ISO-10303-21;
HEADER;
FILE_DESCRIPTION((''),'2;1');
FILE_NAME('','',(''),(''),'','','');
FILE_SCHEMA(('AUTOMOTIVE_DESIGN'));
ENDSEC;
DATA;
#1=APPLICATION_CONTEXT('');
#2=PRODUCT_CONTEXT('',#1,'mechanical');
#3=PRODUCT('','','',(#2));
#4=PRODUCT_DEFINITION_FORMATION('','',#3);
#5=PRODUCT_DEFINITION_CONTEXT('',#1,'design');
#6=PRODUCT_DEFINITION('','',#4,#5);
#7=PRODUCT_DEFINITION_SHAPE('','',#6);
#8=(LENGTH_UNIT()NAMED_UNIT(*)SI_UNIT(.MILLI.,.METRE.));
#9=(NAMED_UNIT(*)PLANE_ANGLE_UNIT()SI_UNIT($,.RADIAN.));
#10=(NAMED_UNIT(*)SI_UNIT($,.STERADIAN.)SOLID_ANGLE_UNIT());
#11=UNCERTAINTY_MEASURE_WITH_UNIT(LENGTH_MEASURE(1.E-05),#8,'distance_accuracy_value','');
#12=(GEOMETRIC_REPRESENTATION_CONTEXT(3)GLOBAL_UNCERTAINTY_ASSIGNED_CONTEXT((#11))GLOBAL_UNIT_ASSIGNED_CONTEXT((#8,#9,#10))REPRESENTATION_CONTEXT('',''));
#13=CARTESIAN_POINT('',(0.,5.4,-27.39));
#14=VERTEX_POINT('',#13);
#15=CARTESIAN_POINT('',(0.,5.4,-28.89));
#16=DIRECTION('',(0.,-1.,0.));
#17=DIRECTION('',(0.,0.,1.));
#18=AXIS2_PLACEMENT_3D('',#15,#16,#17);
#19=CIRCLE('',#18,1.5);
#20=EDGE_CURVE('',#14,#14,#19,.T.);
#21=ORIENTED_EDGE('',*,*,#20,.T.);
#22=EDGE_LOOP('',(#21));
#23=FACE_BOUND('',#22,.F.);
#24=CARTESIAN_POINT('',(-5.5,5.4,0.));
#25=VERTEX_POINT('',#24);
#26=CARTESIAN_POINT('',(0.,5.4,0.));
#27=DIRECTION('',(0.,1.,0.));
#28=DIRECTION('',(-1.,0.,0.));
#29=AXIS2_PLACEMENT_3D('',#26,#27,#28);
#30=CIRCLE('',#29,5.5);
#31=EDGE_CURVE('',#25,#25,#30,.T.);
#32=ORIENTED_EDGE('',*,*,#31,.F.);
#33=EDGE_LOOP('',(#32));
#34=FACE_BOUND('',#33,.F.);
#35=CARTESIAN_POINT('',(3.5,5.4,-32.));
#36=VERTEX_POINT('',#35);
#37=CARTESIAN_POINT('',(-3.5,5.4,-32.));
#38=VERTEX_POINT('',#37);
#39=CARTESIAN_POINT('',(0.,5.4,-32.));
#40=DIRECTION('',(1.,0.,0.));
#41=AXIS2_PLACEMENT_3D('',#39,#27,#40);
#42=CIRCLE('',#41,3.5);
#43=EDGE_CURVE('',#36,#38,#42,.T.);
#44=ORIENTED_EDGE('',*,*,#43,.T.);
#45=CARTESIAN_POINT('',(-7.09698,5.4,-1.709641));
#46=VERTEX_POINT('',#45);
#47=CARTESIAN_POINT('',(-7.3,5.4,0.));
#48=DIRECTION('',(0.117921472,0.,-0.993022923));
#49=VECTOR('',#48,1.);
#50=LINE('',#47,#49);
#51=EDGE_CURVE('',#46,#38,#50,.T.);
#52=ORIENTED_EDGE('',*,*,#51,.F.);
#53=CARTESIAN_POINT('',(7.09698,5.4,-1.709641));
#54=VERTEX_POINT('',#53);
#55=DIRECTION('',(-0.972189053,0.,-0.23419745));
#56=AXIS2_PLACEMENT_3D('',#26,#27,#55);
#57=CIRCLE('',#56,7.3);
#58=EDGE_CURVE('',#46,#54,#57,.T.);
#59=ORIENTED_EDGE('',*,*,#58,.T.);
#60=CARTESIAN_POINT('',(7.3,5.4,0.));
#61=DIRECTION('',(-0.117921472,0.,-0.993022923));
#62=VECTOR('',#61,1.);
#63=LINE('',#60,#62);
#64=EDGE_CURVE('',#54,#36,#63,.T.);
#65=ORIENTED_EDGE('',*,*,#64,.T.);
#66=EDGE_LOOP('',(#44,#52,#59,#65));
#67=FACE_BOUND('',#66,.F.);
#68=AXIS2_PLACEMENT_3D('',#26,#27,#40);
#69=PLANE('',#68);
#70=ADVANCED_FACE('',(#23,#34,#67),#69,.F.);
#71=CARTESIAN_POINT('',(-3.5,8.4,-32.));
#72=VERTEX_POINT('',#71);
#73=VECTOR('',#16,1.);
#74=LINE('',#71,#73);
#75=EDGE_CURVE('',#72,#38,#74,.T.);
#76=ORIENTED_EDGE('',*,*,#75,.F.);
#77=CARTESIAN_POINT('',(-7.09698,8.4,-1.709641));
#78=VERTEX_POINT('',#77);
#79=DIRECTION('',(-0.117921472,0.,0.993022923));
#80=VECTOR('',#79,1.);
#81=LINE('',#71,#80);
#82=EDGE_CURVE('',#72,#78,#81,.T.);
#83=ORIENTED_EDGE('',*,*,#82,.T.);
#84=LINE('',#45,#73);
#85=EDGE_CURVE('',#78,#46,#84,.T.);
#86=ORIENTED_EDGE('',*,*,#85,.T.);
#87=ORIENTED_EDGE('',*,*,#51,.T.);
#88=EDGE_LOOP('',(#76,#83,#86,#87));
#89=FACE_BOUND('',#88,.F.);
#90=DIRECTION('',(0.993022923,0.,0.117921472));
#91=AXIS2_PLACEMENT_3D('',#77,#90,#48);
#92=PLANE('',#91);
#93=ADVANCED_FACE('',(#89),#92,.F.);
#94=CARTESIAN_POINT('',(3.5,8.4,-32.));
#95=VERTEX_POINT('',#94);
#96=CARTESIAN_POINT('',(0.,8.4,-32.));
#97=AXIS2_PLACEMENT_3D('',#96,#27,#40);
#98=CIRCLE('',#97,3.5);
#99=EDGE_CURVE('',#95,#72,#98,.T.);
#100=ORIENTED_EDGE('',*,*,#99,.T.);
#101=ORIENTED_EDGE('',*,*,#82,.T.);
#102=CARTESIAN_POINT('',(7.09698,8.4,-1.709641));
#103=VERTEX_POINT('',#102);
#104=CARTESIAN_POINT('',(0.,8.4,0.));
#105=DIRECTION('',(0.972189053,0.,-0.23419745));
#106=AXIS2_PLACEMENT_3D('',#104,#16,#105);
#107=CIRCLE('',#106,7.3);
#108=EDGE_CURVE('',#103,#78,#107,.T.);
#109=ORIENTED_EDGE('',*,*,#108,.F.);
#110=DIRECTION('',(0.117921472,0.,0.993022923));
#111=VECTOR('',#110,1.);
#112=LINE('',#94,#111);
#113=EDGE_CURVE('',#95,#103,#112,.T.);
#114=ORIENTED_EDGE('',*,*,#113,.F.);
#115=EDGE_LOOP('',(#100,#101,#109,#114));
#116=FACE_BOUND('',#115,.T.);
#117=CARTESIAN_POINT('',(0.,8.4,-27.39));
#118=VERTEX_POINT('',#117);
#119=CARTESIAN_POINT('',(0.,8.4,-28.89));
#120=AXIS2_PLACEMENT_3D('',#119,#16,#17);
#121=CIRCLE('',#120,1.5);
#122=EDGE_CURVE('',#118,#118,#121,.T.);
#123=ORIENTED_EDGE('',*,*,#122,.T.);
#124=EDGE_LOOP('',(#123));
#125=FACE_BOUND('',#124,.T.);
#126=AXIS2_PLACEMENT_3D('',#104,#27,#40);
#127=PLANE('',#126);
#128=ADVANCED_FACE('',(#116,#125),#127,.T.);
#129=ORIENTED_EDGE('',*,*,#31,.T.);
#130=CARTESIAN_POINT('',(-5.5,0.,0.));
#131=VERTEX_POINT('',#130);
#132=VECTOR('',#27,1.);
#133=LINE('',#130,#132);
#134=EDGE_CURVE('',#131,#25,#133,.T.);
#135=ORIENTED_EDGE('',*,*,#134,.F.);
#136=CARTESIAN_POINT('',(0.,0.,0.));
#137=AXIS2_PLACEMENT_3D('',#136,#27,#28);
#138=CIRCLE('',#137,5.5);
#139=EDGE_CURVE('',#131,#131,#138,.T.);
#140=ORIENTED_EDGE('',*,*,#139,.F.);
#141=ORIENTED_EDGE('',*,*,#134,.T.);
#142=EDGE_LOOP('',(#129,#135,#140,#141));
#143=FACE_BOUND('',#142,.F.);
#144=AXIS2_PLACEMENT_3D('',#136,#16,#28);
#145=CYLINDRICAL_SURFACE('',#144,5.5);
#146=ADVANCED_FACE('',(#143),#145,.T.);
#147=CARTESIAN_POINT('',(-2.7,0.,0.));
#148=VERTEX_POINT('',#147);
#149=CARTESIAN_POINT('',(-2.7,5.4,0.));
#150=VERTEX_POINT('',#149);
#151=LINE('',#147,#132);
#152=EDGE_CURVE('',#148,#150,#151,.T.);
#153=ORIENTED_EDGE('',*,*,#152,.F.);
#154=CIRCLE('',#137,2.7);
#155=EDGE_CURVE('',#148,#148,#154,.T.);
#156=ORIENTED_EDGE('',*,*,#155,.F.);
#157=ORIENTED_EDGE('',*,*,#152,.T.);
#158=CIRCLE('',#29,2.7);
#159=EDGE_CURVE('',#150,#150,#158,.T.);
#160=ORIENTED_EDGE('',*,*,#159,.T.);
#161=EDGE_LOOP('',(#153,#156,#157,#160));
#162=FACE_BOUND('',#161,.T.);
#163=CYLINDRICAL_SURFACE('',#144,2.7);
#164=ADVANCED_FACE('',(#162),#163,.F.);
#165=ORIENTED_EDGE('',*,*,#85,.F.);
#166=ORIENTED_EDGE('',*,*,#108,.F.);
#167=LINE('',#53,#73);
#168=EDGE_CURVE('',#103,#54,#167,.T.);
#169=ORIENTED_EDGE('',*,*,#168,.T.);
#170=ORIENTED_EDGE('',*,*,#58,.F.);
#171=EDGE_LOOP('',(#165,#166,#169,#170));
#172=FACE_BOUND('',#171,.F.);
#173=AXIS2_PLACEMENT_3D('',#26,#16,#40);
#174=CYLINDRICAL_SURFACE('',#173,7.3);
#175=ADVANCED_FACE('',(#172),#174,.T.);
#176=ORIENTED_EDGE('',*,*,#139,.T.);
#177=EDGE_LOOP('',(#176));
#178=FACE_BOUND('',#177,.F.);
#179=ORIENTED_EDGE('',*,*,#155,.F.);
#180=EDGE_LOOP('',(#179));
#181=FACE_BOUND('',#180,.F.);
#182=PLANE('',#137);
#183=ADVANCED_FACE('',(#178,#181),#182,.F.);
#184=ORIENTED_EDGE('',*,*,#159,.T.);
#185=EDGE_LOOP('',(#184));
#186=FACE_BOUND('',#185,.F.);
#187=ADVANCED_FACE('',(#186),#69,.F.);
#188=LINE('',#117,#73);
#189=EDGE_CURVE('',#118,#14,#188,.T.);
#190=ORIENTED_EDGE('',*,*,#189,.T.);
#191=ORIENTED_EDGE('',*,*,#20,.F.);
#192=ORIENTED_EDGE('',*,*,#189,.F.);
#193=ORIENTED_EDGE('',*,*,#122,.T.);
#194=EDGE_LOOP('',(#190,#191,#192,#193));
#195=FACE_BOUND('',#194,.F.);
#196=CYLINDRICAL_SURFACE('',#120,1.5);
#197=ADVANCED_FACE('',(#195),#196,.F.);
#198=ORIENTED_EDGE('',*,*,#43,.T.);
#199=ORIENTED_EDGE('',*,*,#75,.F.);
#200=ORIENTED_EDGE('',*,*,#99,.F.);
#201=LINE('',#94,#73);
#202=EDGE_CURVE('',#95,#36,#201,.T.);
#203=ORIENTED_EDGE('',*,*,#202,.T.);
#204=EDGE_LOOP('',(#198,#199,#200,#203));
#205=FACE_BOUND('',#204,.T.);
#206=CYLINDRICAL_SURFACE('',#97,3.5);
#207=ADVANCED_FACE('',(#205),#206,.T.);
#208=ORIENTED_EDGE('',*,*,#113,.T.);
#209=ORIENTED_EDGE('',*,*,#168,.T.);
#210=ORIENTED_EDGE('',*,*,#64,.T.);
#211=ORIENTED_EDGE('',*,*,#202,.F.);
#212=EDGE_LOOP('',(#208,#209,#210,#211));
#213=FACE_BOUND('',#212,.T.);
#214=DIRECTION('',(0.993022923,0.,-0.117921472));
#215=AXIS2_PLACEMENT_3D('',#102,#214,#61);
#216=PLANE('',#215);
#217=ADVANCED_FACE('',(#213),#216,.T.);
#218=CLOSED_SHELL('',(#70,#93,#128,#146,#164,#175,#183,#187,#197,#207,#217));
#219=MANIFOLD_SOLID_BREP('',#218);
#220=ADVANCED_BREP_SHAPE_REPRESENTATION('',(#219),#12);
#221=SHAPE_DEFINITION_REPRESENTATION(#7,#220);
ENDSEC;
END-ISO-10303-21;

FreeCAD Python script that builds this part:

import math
import FreeCAD as App
import Part
import Sketcher

doc = App.newDocument("Part")
params = doc.addObject("Spreadsheet::Sheet", "Params")
for row, (alias, value) in enumerate([
    ("sketch1_diameter", "11 mm"),
    ("sketch1_diameter2", "5.4 mm"),
    ("pad1_length", "5.4 mm"),
    ("sketch2_diameter", "14.6 mm"),
    ("pad2_length", "3 mm"),
    ("sketch3_radius", "3.5 mm"),
    ("sketch3_radius2", "7.3 mm"),
    ("pad3_length", "3 mm"),
    ("sketch4_diameter", "3 mm"),
    ("hole_diameter", "3 mm"),
], start=1):
    params.set(f"A{row}", alias)
    params.set(f"B{row}", "=" + value)
    params.setAlias(f"B{row}", alias)

body = doc.addObject("PartDesign::Body", "Body")

# Sketch on XZ plane
sketch1 = body.newObject("Sketcher::SketchObject", "Sketch")
sketch1.AttachmentSupport = (doc.getObject("XZ_Plane"), [""])
sketch1.MapMode = "FlatFace"
sketch1.addGeometry([
    Part.Circle(App.Vector(0, 0, 0), App.Vector(0, 0, 1), 5.5),
    Part.Circle(App.Vector(0, 0, 0), App.Vector(0, 0, 1), 2.7),
], False)
sketch1.addConstraint([
    Sketcher.Constraint("Coincident", 0, 3, -1, 1),
    Sketcher.Constraint("Coincident", 1, 3, -1, 1),
    Sketcher.Constraint("Diameter", 0, 11.0),
    Sketcher.Constraint("Diameter", 1, 5.4),
])
sketch1.setExpression("Constraints[2]", "Params.sketch1_diameter")
sketch1.setExpression("Constraints[3]", "Params.sketch1_diameter2")
pad1 = body.newObject("PartDesign::Pad", "Pad")
pad1.Profile = sketch1
pad1.setExpression("Length", "Params.pad1_length")
pad1.Reversed = True

# Sketch on XZ plane
sketch2 = body.newObject("Sketcher::SketchObject", "Sketch001")
sketch2.AttachmentSupport = (doc.getObject("XZ_Plane"), [""])
sketch2.MapMode = "FlatFace"
sketch2.AttachmentOffset = App.Placement(App.Vector(0, 0, -5.4), App.Rotation())
sketch2.addGeometry(Part.Circle(App.Vector(0, 0, 0), App.Vector(0, 0, 1), 7), False)
sketch2.addConstraint([
    Sketcher.Constraint("Coincident", 0, 3, -1, 1),
    Sketcher.Constraint("Diameter", 0, 14.6),
])
sketch2.setExpression("Constraints[1]", "Params.sketch2_diameter")
pad2 = body.newObject("PartDesign::Pad", "Pad001")
pad2.Profile = sketch2
pad2.setExpression("Length", "Params.pad2_length")
pad2.Reversed = True

# Sketch on XZ plane
sketch3 = body.newObject("Sketcher::SketchObject", "Sketch002")
sketch3.AttachmentSupport = (doc.getObject("XZ_Plane"), [""])
sketch3.MapMode = "FlatFace"
sketch3.AttachmentOffset = App.Placement(App.Vector(0, 0, -8.4), App.Rotation())
sketch3.addGeometry([
    Part.ArcOfCircle(Part.Circle(App.Vector(0, -32, 0), App.Vector(0, 0, 1), 3.5), math.radians(180), math.radians(360)),
    Part.LineSegment(App.Vector(-3.5, -32, 0), App.Vector(-7.3, 0, 0)),
    Part.ArcOfCircle(Part.Circle(App.Vector(0, 0, 0), App.Vector(0, 0, 1), 7.3), math.radians(0), math.radians(180)),
    Part.LineSegment(App.Vector(7.3, 0, 0), App.Vector(3.5, -32, 0)),
], False)
sketch3.addConstraint([
    Sketcher.Constraint("Coincident", 0, 1, 1, 1),
    Sketcher.Constraint("Coincident", 1, 2, 2, 2),
    Sketcher.Constraint("Coincident", 2, 1, 3, 1),
    Sketcher.Constraint("Coincident", 3, 2, 0, 2),
    Sketcher.Constraint("Coincident", 2, 3, -1, 1),
    Sketcher.Constraint("Symmetric", 0, 1, 3, 2, -2),
    Sketcher.Constraint("PointOnObject", 1, 2, -1),
    Sketcher.Constraint("PointOnObject", 2, 1, -1),
    Sketcher.Constraint("Radius", 0, 3.5),
    Sketcher.Constraint("DistanceY", 0, 3, -1, 1, 32.0),
    Sketcher.Constraint("DistanceY", 0, 1, -1, 1, 32.0),
    Sketcher.Constraint("Radius", 2, 7.3),
])
sketch3.setExpression("Constraints[8]", "Params.sketch3_radius")
sketch3.setExpression("Constraints[11]", "Params.sketch3_radius2")
pad3 = body.newObject("PartDesign::Pad", "Pad002")
pad3.Profile = sketch3
pad3.setExpression("Length", "Params.pad3_length")

# Sketch on XZ plane
sketch4 = body.newObject("Sketcher::SketchObject", "Sketch003")
sketch4.AttachmentSupport = (doc.getObject("XZ_Plane"), [""])
sketch4.MapMode = "FlatFace"
sketch4.AttachmentOffset = App.Placement(App.Vector(0, 0, -8.4), App.Rotation())
sketch4.addGeometry(Part.Circle(App.Vector(0, -28.9, 0), App.Vector(0, 0, 1), 1.5), False)
sketch4.addConstraint([
    Sketcher.Constraint("PointOnObject", 0, 3, -2),
    Sketcher.Constraint("Diameter", 0, 3.0),
    Sketcher.Constraint("DistanceY", 0, 3, -1, 1, 28.89),
])
sketch4.setExpression("Constraints[1]", "Params.sketch4_diameter")
doc.recompute()
hole = body.newObject("PartDesign::Hole", "Hole")
hole.Profile = sketch4
hole.ThreadType = "None"
hole.setExpression("Diameter", "Params.hole_diameter")
hole.DepthType = "ThroughAll"
hole.Reversed = True

doc.recompute()
